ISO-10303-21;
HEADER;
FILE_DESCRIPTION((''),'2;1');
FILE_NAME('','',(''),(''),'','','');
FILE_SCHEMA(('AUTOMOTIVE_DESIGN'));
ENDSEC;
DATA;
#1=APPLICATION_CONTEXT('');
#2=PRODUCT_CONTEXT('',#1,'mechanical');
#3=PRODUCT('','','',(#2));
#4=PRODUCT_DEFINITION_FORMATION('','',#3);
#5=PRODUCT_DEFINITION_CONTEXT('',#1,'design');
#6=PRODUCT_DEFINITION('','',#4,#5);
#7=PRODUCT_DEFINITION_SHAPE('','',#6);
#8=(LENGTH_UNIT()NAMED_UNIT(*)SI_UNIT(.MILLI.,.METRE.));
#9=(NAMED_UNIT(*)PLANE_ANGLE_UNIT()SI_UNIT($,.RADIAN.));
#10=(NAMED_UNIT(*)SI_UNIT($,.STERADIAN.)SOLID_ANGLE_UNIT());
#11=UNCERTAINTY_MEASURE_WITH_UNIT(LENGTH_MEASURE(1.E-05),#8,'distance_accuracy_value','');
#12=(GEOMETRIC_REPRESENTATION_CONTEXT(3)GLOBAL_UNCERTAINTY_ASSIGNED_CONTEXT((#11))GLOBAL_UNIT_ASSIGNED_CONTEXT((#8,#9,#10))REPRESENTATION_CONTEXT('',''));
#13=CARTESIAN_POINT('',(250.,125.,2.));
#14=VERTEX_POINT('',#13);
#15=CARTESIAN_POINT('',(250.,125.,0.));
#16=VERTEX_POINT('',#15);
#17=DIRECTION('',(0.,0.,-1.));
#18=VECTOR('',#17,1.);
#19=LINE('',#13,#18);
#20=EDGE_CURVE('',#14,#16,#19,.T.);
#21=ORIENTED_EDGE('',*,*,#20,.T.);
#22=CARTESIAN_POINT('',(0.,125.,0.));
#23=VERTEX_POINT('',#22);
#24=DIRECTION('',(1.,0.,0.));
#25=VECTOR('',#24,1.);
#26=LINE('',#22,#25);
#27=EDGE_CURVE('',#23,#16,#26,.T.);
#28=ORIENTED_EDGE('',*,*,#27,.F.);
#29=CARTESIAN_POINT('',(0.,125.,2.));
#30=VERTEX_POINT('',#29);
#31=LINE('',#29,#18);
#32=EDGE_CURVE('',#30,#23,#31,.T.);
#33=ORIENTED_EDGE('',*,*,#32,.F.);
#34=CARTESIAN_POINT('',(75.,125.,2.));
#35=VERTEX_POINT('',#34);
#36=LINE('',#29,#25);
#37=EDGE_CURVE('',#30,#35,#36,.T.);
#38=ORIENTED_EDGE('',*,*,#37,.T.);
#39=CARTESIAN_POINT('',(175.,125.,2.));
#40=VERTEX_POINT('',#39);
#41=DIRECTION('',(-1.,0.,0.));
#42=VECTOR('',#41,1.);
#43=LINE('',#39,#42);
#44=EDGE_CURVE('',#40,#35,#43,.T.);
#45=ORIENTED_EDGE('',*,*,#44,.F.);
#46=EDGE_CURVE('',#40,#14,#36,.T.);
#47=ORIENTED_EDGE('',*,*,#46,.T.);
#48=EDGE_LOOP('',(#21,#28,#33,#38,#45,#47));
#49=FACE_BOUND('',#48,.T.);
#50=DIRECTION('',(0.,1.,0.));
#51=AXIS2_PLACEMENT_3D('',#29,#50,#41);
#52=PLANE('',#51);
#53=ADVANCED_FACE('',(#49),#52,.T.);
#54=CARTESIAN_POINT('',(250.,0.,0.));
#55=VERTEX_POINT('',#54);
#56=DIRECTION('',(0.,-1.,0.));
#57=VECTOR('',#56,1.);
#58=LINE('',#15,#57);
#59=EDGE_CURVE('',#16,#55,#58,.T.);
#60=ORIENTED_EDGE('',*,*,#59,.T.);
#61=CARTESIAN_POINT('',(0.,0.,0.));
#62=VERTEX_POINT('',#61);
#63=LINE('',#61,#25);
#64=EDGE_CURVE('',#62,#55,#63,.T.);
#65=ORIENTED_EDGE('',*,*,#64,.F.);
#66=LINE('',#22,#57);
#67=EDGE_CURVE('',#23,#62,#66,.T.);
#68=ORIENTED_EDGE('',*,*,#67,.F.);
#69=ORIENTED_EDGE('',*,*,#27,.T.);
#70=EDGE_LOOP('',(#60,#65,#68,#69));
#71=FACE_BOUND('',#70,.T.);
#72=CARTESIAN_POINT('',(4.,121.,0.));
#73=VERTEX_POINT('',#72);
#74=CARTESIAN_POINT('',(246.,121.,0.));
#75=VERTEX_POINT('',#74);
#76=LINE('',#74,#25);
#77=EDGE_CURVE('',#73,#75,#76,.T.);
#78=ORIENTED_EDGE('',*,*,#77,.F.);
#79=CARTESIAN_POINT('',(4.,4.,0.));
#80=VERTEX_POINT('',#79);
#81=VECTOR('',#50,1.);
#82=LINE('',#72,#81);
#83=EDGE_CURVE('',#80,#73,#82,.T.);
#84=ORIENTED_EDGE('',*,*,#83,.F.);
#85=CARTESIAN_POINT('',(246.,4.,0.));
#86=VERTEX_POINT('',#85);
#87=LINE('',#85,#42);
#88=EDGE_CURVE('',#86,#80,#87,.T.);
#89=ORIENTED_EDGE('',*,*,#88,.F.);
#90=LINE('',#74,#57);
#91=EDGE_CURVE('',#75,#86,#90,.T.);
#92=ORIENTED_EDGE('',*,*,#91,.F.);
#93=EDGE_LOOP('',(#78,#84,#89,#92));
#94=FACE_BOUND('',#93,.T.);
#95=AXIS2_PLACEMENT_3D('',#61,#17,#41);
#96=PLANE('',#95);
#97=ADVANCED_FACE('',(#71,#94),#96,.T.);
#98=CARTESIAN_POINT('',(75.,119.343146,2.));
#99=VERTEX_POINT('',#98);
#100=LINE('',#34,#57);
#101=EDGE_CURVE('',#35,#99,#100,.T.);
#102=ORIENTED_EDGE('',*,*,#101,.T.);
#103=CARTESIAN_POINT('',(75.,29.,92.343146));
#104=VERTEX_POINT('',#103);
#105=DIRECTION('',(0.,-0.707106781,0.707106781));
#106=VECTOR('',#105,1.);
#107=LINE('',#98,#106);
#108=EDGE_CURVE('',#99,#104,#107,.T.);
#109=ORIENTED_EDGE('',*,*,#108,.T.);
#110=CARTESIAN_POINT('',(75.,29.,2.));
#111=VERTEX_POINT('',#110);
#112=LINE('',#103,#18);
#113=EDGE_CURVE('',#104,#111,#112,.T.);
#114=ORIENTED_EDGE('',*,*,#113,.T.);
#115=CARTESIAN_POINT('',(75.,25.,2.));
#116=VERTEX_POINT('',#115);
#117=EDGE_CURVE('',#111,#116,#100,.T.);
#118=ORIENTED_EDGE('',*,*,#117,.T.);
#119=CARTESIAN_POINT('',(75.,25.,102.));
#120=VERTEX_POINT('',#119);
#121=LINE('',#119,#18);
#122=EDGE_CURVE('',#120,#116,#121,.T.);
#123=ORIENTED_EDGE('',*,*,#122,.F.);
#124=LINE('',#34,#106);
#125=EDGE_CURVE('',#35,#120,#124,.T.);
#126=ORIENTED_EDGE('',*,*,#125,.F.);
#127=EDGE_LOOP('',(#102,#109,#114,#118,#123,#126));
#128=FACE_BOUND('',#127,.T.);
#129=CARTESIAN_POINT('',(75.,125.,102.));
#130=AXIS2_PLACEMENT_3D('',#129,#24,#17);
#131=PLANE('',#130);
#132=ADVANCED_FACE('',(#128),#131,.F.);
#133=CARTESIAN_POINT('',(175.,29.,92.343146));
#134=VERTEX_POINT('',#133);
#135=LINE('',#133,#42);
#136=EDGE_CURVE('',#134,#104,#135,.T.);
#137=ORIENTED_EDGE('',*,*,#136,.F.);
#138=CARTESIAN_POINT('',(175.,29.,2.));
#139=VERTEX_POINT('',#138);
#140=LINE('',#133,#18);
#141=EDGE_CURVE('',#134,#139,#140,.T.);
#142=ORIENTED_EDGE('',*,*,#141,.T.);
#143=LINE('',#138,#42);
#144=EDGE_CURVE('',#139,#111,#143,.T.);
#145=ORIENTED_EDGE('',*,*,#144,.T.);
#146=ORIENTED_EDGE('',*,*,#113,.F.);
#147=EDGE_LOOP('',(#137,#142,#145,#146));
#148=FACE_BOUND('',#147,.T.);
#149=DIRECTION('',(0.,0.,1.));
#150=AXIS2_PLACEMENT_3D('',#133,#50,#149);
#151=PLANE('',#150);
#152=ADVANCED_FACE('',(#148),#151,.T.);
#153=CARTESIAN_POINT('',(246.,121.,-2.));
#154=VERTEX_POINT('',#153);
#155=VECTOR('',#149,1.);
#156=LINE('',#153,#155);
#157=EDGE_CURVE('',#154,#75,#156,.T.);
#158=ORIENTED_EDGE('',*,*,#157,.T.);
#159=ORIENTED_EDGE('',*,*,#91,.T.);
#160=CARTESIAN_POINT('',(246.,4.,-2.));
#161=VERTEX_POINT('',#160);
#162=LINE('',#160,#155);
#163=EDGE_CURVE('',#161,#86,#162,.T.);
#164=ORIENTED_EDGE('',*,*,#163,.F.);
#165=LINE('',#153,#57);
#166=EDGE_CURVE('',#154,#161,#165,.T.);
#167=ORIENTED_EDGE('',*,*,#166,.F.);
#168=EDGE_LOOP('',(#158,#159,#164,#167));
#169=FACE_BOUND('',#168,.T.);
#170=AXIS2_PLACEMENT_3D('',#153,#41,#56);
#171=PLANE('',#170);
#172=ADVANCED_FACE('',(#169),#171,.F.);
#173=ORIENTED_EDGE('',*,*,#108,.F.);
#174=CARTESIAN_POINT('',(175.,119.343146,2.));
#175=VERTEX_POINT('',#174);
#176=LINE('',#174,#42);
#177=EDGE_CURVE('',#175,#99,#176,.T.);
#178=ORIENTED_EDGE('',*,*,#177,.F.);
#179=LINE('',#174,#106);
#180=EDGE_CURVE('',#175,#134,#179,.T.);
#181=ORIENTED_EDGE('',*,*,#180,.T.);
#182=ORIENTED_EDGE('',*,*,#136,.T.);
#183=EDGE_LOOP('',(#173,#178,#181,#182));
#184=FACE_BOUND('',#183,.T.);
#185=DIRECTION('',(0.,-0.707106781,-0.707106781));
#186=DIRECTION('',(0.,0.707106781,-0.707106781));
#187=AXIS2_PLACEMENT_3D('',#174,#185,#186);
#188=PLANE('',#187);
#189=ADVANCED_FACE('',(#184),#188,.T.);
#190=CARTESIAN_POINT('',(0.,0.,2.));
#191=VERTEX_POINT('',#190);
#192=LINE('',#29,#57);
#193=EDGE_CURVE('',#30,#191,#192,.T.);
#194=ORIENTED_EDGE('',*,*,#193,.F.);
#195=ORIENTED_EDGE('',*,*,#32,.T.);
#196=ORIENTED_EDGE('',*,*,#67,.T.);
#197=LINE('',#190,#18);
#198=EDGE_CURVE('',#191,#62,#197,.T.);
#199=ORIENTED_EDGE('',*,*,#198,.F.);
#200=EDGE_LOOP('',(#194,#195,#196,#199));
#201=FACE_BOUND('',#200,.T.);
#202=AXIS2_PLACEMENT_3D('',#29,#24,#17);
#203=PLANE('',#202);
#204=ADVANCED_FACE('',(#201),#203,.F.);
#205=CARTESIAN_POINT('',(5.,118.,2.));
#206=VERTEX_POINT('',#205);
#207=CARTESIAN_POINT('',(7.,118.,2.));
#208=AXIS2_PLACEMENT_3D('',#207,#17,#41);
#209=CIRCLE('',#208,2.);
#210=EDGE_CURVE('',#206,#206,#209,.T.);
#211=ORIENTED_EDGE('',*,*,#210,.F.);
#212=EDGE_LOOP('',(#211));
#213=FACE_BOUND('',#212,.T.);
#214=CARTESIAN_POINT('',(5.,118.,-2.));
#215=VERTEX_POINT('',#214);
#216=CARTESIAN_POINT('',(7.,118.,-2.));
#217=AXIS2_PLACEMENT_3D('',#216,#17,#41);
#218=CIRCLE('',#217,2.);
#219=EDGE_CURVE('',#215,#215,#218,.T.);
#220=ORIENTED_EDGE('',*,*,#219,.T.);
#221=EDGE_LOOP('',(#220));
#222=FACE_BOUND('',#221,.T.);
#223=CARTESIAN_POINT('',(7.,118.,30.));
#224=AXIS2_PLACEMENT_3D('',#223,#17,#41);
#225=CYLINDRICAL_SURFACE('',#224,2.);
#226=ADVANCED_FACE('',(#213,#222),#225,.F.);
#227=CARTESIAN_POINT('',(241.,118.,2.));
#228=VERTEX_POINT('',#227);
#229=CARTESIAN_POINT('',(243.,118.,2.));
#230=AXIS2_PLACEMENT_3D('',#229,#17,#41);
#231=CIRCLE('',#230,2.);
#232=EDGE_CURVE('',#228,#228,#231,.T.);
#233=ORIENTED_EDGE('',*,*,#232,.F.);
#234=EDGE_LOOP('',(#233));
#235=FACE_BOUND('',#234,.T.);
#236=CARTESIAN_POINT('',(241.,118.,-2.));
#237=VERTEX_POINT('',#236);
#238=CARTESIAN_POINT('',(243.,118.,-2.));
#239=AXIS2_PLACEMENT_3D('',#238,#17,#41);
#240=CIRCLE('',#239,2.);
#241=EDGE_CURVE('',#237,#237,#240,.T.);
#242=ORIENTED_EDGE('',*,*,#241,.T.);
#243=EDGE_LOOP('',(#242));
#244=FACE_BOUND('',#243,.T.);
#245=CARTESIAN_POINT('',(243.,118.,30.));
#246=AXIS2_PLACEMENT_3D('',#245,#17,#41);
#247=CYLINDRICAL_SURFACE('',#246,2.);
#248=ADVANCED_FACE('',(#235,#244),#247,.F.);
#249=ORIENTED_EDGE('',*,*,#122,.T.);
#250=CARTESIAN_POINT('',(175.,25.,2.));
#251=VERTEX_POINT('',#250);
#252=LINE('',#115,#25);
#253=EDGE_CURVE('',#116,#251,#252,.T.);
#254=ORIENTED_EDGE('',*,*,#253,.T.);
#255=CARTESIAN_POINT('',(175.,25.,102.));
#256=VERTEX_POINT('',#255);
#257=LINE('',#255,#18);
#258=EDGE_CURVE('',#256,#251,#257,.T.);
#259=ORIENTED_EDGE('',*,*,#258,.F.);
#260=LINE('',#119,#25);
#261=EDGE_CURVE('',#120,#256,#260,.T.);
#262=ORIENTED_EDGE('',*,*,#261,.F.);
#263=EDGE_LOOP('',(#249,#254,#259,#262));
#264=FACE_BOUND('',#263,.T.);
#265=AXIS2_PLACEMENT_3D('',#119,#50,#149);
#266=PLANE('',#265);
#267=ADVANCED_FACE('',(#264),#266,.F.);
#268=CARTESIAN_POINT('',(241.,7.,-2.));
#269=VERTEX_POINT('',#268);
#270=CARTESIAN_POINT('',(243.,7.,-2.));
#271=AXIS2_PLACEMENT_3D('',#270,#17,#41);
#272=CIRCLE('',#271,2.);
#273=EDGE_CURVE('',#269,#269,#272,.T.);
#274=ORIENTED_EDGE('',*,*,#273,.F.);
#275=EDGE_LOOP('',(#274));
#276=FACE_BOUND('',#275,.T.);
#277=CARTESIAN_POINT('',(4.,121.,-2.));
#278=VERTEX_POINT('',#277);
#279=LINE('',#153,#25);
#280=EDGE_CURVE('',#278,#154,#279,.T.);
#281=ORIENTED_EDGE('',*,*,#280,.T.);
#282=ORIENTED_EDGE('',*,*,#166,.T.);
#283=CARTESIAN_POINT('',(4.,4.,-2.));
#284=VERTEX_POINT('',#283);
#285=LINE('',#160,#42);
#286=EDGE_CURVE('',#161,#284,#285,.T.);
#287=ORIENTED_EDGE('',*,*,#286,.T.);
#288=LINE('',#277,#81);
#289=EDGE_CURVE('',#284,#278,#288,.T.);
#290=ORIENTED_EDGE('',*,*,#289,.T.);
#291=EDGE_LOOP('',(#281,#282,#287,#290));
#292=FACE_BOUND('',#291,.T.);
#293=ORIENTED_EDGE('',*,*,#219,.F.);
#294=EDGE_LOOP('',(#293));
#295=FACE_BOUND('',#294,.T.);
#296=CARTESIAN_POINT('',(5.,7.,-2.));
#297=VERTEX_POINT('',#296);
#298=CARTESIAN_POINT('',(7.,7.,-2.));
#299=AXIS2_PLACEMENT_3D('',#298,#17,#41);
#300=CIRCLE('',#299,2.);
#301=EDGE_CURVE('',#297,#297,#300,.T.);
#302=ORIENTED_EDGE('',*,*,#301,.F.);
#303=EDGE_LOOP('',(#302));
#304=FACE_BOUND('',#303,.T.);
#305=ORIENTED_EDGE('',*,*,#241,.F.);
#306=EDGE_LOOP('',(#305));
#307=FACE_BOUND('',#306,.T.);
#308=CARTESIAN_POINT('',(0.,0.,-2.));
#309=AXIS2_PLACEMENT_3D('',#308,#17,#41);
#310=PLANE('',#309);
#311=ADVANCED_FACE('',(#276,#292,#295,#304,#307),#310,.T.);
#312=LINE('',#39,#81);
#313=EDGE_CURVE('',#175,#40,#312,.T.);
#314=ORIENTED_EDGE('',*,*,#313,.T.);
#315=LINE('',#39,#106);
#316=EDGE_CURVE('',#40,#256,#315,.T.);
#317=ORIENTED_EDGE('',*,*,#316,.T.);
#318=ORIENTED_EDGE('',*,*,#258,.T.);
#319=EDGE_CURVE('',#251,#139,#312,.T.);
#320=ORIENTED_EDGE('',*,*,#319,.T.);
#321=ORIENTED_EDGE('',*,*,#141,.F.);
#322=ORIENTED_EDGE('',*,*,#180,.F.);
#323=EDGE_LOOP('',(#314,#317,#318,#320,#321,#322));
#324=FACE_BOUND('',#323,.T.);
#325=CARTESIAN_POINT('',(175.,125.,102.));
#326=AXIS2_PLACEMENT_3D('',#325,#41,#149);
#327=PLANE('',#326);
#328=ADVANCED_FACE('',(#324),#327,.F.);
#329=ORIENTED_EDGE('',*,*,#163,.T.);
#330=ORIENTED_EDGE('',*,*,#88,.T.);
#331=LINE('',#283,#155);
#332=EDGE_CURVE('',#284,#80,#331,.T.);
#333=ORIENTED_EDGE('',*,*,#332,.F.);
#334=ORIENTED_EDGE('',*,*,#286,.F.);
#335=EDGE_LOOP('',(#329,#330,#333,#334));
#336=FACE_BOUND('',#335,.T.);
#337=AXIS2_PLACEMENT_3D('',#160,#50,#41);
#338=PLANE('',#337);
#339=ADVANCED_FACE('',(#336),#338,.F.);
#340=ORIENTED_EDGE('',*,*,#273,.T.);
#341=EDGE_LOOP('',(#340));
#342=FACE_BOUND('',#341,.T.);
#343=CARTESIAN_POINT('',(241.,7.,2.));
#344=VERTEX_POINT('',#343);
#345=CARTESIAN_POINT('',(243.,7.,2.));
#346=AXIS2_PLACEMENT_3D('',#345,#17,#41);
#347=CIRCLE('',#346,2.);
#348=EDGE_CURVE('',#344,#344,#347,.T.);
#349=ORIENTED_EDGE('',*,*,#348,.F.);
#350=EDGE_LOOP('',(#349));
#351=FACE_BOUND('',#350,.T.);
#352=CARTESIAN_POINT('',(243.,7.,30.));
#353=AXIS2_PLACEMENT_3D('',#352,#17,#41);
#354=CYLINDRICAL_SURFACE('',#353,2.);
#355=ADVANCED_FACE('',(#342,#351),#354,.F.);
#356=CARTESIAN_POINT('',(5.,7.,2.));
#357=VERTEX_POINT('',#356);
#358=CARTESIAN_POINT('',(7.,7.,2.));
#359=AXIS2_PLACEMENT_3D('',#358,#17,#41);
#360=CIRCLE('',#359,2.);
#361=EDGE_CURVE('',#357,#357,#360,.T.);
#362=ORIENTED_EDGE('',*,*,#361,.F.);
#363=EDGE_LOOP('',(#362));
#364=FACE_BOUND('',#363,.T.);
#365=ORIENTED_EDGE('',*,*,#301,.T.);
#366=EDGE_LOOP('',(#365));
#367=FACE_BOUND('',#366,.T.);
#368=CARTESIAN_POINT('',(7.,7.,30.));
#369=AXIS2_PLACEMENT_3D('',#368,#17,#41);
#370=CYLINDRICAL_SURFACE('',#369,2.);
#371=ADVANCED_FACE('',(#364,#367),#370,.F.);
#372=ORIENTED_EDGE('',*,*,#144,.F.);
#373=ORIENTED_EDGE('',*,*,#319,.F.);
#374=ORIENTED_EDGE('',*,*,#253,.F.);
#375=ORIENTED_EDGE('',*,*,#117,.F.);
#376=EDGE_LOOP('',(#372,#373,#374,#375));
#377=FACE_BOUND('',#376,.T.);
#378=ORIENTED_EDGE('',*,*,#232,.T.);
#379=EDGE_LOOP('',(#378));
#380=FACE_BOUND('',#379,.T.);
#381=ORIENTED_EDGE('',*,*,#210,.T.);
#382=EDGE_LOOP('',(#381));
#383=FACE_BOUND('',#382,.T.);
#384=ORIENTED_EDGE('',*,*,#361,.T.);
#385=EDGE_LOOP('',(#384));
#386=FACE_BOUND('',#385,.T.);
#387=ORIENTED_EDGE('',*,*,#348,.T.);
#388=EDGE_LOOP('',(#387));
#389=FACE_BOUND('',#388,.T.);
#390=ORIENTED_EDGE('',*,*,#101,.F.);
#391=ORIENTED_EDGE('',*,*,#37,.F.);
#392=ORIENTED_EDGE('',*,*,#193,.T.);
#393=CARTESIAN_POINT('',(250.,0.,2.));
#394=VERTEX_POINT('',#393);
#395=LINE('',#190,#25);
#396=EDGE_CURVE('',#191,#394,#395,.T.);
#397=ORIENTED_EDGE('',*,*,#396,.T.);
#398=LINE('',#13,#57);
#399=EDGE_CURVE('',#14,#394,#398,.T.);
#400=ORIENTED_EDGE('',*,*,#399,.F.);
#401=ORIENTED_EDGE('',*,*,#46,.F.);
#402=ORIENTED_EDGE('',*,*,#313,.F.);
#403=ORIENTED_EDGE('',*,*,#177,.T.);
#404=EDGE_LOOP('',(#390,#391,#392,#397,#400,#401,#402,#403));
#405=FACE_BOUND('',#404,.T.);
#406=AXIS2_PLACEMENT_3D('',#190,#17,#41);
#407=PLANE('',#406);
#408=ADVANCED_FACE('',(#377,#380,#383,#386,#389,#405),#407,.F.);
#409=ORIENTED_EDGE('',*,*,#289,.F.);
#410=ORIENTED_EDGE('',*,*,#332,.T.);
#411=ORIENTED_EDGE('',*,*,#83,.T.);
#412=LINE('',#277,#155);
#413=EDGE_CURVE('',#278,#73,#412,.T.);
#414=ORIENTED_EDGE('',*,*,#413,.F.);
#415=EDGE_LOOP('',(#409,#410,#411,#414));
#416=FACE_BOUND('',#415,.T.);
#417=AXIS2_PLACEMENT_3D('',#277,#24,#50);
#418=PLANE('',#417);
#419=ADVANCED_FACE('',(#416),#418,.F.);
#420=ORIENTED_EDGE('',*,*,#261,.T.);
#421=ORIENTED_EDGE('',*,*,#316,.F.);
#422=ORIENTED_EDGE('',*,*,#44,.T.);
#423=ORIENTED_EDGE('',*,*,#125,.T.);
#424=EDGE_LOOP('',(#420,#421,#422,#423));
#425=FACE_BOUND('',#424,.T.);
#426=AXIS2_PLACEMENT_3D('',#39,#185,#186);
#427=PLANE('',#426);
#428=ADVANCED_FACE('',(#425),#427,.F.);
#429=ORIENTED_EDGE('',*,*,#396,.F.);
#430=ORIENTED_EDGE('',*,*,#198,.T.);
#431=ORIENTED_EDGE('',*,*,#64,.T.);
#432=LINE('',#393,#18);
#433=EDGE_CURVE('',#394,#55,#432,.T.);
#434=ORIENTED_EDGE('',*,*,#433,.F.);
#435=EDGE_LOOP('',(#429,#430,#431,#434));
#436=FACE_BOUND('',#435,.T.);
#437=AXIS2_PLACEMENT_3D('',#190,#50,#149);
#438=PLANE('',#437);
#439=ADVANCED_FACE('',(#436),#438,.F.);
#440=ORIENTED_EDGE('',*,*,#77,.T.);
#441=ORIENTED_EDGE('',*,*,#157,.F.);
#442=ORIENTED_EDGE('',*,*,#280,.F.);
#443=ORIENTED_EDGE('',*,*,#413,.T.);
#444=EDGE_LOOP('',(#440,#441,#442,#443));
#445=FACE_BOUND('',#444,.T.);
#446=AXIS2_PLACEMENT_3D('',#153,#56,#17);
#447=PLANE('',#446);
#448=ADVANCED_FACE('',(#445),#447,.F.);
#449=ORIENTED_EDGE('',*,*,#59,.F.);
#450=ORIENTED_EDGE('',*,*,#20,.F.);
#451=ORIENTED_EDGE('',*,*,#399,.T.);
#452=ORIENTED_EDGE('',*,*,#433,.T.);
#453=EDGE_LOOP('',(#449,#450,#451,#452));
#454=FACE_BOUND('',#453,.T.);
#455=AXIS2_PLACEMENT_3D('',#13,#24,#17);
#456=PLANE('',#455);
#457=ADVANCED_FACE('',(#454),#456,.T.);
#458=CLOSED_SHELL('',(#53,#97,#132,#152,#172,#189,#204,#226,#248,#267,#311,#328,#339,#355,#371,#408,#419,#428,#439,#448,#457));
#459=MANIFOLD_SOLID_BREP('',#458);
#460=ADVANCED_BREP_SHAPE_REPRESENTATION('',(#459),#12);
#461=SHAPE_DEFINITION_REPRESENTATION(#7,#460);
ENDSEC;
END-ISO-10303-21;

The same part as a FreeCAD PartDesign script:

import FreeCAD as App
import Part
import Sketcher

V = App.Vector
Q = App.Units.Quantity


def add_polygon(sketch, points):
    """Adds a closed chain of lines whose ends are joined by coincident constraints."""
    first, n = sketch.GeometryCount, len(points)
    for a, b in zip(points, points[1:] + points[:1]):
        sketch.addGeometry(Part.LineSegment(App.Vector(*a, 0), App.Vector(*b, 0)), False)
    for i in range(n):
        sketch.addConstraint(Sketcher.Constraint("Coincident", first + i, 2, first + (i + 1) % n, 1))

doc = App.newDocument("Part")
body = doc.addObject("PartDesign::Body", "Body")

sketch1 = doc.addObject("Sketcher::SketchObject", "Sketch")
body.addObject(sketch1)
sketch1.AttachmentSupport = (doc.XY_Plane, [""])
sketch1.MapMode = "FlatFace"
add_polygon(sketch1, [(0, 125), (0, 0), (250, 0), (250, 125)])
sketch1.addConstraint([
    Sketcher.Constraint("Vertical", 0),
    Sketcher.Constraint("Horizontal", 1),
    Sketcher.Constraint("Vertical", 2),
    Sketcher.Constraint("Horizontal", 3),
    Sketcher.Constraint("Coincident", 0, 2, -1, 1),
    Sketcher.Constraint("DistanceX", 1, 1, 1, 2, Q("250 mm")),
    Sketcher.Constraint("DistanceY", 0, 2, 0, 1, Q("125 mm")),
])
pad1 = doc.addObject("PartDesign::Pad", "Pad")
body.addObject(pad1)
pad1.Profile = sketch1
pad1.Length = 2

sketch2 = doc.addObject("Sketcher::SketchObject", "Sketch001")
body.addObject(sketch2)
sketch2.AttachmentSupport = (doc.XY_Plane, [""])
sketch2.MapMode = "FlatFace"
sketch2.AttachmentOffset = App.Placement(V(0, 0, 2), App.Rotation())
add_polygon(sketch2, [(75, 125), (75, 25), (175, 25), (175, 125)])
sketch2.addConstraint([
    Sketcher.Constraint("Vertical", 0),
    Sketcher.Constraint("Horizontal", 1),
    Sketcher.Constraint("Vertical", 2),
    Sketcher.Constraint("Horizontal", 3),
    Sketcher.Constraint("Equal", 3, 0),
    Sketcher.Constraint("DistanceX", 1, 1, 1, 2, Q("100 mm")),
    Sketcher.Constraint("DistanceX", -1, 1, 0, 2, Q("75 mm")),
    Sketcher.Constraint("DistanceY", -1, 1, 0, 2, Q("25 mm")),
])
pad2 = doc.addObject("PartDesign::Pad", "Pad001")
body.addObject(pad2)
pad2.Profile = sketch2
pad2.Length = 100

sketch3 = doc.addObject("Sketcher::SketchObject", "Sketch002")
body.addObject(sketch3)
sketch3.AttachmentSupport = (doc.YZ_Plane, [""])
sketch3.MapMode = "FlatFace"
sketch3.AttachmentOffset = App.Placement(V(0, 0, 75), App.Rotation())
add_polygon(sketch3, [(25, 102), (125, 102), (125, 2)])
sketch3.addConstraint([
    Sketcher.Constraint("Horizontal", 0),
    Sketcher.Constraint("Vertical", 1),
    Sketcher.Constraint("Equal", 0, 1),
    Sketcher.Constraint("DistanceX", 0, 1, 0, 2, Q("100 mm")),
    Sketcher.Constraint("DistanceX", -1, 1, 0, 2, Q("125 mm")),
    Sketcher.Constraint("DistanceY", -1, 1, 0, 2, Q("102 mm")),
])
pocket1 = doc.addObject("PartDesign::Pocket", "Pocket")
body.addObject(pocket1)
pocket1.Profile = sketch3
pocket1.Length = 100
pocket1.Reversed = True

sketch4 = doc.addObject("Sketcher::SketchObject", "Sketch003")
body.addObject(sketch4)
sketch4.AttachmentSupport = (doc.YZ_Plane, [""])
sketch4.MapMode = "FlatFace"
sketch4.AttachmentOffset = App.Placement(V(0, 0, 75), App.Rotation())
add_polygon(sketch4, [(29, 92.343146), (119.343146, 2), (29, 2)])
sketch4.addConstraint([
    Sketcher.Constraint("Horizontal", 1),
    Sketcher.Constraint("Vertical", 2),
    Sketcher.Constraint("Equal", 1, 2),
    Sketcher.Constraint("DistanceY", -1, 1, 0, 2, Q("2 mm")),
    Sketcher.Constraint("DistanceX", -1, 1, 1, 2, Q("29 mm")),
    Sketcher.Constraint("Distance", 0, Q("127.764502 mm")),
])
pocket2 = doc.addObject("PartDesign::Pocket", "Pocket001")
body.addObject(pocket2)
pocket2.Profile = sketch4
pocket2.Length = 100
pocket2.Reversed = True

sketch5 = doc.addObject("Sketcher::SketchObject", "Sketch004")
body.addObject(sketch5)
sketch5.AttachmentSupport = (doc.XY_Plane, [""])
sketch5.MapMode = "FlatFace"
add_polygon(sketch5, [(246, 121), (246, 4), (4, 4), (4, 121)])
sketch5.addConstraint([
    Sketcher.Constraint("Vertical", 0),
    Sketcher.Constraint("Horizontal", 1),
    Sketcher.Constraint("Vertical", 2),
    Sketcher.Constraint("Horizontal", 3),
    Sketcher.Constraint("DistanceX", 1, 2, 1, 1, Q("242 mm")),
    Sketcher.Constraint("DistanceY", 0, 2, 0, 1, Q("117 mm")),
    Sketcher.Constraint("DistanceX", -1, 1, 0, 2, Q("246 mm")),
    Sketcher.Constraint("DistanceY", -1, 1, 0, 2, Q("4 mm")),
])
pad3 = doc.addObject("PartDesign::Pad", "Pad002")
body.addObject(pad3)
pad3.Profile = sketch5
pad3.Length = 2
pad3.Reversed = True

sketch6 = doc.addObject("Sketcher::SketchObject", "Sketch005")
body.addObject(sketch6)
sketch6.AttachmentSupport = (doc.XY_Plane, [""])
sketch6.MapMode = "FlatFace"
sketch6.AttachmentOffset = App.Placement(V(0, 0, -2), App.Rotation())
sketch6.addGeometry([
    Part.Circle(V(243, 118, 0), V(0, 0, 1), 2),
    Part.Circle(V(7, 7, 0), V(0, 0, 1), 2),
    Part.Circle(V(7, 118, 0), V(0, 0, 1), 2),
    Part.Circle(V(243, 7, 0), V(0, 0, 1), 2),
], False)
sketch6.addConstraint([
    Sketcher.Constraint("Equal", 0, 1),
    Sketcher.Constraint("Equal", 1, 2),
    Sketcher.Constraint("Equal", 2, 3),
    Sketcher.Constraint("Horizontal", 0, 3, 2, 3),
    Sketcher.Constraint("Horizontal", 1, 3, 3, 3),
    Sketcher.Constraint("Vertical", 1, 3, 2, 3),
    Sketcher.Constraint("Vertical", 0, 3, 3, 3),
    Sketcher.Constraint("Diameter", 0, Q("4 mm")),
    Sketcher.Constraint("DistanceX", -1, 1, 0, 3, Q("243 mm")),
    Sketcher.Constraint("DistanceY", -1, 1, 0, 3, Q("118 mm")),
    Sketcher.Constraint("DistanceX", -1, 1, 1, 3, Q("7 mm")),
    Sketcher.Constraint("DistanceY", -1, 1, 1, 3, Q("7 mm")),
])
pocket3 = doc.addObject("PartDesign::Pocket", "Pocket002")
body.addObject(pocket3)
pocket3.Profile = sketch6
pocket3.Length = 32
pocket3.Reversed = True

doc.recompute()
